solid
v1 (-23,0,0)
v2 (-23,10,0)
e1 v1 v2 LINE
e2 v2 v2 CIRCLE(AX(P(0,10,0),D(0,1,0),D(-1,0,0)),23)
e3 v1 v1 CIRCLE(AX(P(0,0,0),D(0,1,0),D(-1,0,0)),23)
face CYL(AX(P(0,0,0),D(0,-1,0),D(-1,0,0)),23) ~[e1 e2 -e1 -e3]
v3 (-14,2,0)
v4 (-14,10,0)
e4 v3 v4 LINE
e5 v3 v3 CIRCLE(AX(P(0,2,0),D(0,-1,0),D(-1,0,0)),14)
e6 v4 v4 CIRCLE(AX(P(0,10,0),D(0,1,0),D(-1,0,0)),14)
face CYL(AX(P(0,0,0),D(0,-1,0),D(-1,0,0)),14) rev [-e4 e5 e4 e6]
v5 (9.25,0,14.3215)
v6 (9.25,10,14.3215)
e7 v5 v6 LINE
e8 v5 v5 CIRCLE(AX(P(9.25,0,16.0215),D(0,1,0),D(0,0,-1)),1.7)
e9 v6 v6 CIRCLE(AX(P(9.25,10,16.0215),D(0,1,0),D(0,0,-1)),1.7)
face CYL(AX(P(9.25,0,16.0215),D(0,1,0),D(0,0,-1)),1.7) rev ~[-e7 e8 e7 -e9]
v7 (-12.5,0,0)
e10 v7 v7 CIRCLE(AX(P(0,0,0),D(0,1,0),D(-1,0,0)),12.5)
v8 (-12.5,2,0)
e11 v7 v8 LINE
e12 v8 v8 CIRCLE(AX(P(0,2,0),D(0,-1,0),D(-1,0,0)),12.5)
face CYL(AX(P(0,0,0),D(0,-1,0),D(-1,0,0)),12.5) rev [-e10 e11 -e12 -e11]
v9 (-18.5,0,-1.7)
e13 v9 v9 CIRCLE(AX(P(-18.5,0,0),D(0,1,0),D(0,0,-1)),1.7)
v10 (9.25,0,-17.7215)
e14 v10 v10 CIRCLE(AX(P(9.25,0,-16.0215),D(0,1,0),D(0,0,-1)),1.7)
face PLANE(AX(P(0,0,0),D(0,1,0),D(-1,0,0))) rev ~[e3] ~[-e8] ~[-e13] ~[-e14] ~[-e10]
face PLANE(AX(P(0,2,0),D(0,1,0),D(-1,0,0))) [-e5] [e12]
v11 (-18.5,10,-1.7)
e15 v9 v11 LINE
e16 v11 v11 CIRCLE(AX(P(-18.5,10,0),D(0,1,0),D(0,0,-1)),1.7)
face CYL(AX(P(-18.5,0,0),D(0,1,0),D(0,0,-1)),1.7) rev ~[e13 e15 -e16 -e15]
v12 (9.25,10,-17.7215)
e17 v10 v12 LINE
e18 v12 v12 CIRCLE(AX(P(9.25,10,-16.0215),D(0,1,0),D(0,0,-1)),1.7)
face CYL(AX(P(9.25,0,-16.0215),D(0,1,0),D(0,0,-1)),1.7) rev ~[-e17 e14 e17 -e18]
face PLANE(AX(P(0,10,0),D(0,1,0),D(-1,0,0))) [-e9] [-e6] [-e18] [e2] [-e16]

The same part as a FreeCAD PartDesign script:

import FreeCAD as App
import Part
import Sketcher
from FreeCAD import Vector

doc = App.newDocument("Part")
params = doc.addObject("Spreadsheet::Sheet", "Params")
for row, (alias, value) in enumerate([
    ("sketch1_diameter", "46 mm"),
    ("sketch1_diameter2", "28 mm"),
    ("pad1_length", "10 mm"),
    ("sketch2_diameter", "28 mm"),
    ("sketch2_diameter2", "25 mm"),
    ("pad2_length", "2 mm"),
    ("sketch3_diameter", "3.4 mm"),
    ("hole_diameter", "3.4 mm"),
], start=1):
    params.set(f"A{row}", alias)
    params.set(f"B{row}", "=" + value)
    params.setAlias(f"B{row}", alias)

body = doc.addObject("PartDesign::Body", "Body")

sketch1 = body.newObject("Sketcher::SketchObject", "Sketch")
sketch1.AttachmentSupport = (doc.getObject("XZ_Plane"), [""])
sketch1.MapMode = "FlatFace"
sketch1.addGeometry(Part.Circle(Vector(0, 0, 0), Vector(0, 0, 1), 23), False)
sketch1.addGeometry(Part.Circle(Vector(0, 0, 0), Vector(0, 0, 1), 14), False)
sketch1.addConstraint(Sketcher.Constraint("Coincident", 0, 3, -1, 1))
sketch1.addConstraint(Sketcher.Constraint("Coincident", 1, 3, -1, 1))
sketch1.addConstraint(Sketcher.Constraint("Diameter", 0, 46.0))
sketch1.addConstraint(Sketcher.Constraint("Diameter", 1, 28.0))
sketch1.setExpression("Constraints[2]", "Params.sketch1_diameter")
sketch1.setExpression("Constraints[3]", "Params.sketch1_diameter2")
pad1 = body.newObject("PartDesign::Pad", "Pad")
pad1.Profile = sketch1
pad1.setExpression("Length", "Params.pad1_length")
pad1.Reversed = True

sketch2 = body.newObject("Sketcher::SketchObject", "Sketch001")
sketch2.AttachmentSupport = (doc.getObject("XZ_Plane"), [""])
sketch2.MapMode = "FlatFace"
sketch2.addGeometry(Part.Circle(Vector(0, 0, 0), Vector(0, 0, 1), 14), False)
sketch2.addGeometry(Part.Circle(Vector(0, 0, 0), Vector(0, 0, 1), 12), False)
sketch2.addConstraint(Sketcher.Constraint("Coincident", 0, 3, -1, 1))
sketch2.addConstraint(Sketcher.Constraint("Coincident", 1, 3, -1, 1))
sketch2.addConstraint(Sketcher.Constraint("Diameter", 0, 28.0))
sketch2.addConstraint(Sketcher.Constraint("Diameter", 1, 25.0))
sketch2.setExpression("Constraints[2]", "Params.sketch2_diameter")
sketch2.setExpression("Constraints[3]", "Params.sketch2_diameter2")
pad2 = body.newObject("PartDesign::Pad", "Pad001")
pad2.Profile = sketch2
pad2.setExpression("Length", "Params.pad2_length")
pad2.Reversed = True

sketch3 = body.newObject("Sketcher::SketchObject", "Sketch002")
sketch3.AttachmentSupport = (doc.getObject("XZ_Plane"), [""])
sketch3.MapMode = "FlatFace"
sketch3.addGeometry(Part.Circle(Vector(-18.5, 0, 0), Vector(0, 0, 1), 1.7), False)
sketch3.addGeometry(Part.Circle(Vector(9.2, 16, 0), Vector(0, 0, 1), 1.7), False)
sketch3.addGeometry(Part.Circle(Vector(9.2, -16, 0), Vector(0, 0, 1), 1.7), False)
sketch3.addConstraint(Sketcher.Constraint("Equal", 0, 1))
sketch3.addConstraint(Sketcher.Constraint("Equal", 1, 2))
sketch3.addConstraint(Sketcher.Constraint("Symmetric", 1, 3, 2, 3, -1))
sketch3.addConstraint(Sketcher.Constraint("PointOnObject", 0, 3, -1))
sketch3.addConstraint(Sketcher.Constraint("Diameter", 0, 3.4))
sketch3.addConstraint(Sketcher.Constraint("DistanceX", 0, 3, -1, 1, 18.5))
sketch3.addConstraint(Sketcher.Constraint("DistanceX", -1, 1, 1, 3, 9.25))
sketch3.addConstraint(Sketcher.Constraint("DistanceY", 2, 3, 1, 3, 32.043))
sketch3.setExpression("Constraints[4]", "Params.sketch3_diameter")
doc.recompute()
hole = body.newObject("PartDesign::Hole", "Hole")
hole.Profile = sketch3
hole.ThreadType = "None"
hole.setExpression("Diameter", "Params.hole_diameter")
hole.DepthType = "ThroughAll"

doc.recompute()
